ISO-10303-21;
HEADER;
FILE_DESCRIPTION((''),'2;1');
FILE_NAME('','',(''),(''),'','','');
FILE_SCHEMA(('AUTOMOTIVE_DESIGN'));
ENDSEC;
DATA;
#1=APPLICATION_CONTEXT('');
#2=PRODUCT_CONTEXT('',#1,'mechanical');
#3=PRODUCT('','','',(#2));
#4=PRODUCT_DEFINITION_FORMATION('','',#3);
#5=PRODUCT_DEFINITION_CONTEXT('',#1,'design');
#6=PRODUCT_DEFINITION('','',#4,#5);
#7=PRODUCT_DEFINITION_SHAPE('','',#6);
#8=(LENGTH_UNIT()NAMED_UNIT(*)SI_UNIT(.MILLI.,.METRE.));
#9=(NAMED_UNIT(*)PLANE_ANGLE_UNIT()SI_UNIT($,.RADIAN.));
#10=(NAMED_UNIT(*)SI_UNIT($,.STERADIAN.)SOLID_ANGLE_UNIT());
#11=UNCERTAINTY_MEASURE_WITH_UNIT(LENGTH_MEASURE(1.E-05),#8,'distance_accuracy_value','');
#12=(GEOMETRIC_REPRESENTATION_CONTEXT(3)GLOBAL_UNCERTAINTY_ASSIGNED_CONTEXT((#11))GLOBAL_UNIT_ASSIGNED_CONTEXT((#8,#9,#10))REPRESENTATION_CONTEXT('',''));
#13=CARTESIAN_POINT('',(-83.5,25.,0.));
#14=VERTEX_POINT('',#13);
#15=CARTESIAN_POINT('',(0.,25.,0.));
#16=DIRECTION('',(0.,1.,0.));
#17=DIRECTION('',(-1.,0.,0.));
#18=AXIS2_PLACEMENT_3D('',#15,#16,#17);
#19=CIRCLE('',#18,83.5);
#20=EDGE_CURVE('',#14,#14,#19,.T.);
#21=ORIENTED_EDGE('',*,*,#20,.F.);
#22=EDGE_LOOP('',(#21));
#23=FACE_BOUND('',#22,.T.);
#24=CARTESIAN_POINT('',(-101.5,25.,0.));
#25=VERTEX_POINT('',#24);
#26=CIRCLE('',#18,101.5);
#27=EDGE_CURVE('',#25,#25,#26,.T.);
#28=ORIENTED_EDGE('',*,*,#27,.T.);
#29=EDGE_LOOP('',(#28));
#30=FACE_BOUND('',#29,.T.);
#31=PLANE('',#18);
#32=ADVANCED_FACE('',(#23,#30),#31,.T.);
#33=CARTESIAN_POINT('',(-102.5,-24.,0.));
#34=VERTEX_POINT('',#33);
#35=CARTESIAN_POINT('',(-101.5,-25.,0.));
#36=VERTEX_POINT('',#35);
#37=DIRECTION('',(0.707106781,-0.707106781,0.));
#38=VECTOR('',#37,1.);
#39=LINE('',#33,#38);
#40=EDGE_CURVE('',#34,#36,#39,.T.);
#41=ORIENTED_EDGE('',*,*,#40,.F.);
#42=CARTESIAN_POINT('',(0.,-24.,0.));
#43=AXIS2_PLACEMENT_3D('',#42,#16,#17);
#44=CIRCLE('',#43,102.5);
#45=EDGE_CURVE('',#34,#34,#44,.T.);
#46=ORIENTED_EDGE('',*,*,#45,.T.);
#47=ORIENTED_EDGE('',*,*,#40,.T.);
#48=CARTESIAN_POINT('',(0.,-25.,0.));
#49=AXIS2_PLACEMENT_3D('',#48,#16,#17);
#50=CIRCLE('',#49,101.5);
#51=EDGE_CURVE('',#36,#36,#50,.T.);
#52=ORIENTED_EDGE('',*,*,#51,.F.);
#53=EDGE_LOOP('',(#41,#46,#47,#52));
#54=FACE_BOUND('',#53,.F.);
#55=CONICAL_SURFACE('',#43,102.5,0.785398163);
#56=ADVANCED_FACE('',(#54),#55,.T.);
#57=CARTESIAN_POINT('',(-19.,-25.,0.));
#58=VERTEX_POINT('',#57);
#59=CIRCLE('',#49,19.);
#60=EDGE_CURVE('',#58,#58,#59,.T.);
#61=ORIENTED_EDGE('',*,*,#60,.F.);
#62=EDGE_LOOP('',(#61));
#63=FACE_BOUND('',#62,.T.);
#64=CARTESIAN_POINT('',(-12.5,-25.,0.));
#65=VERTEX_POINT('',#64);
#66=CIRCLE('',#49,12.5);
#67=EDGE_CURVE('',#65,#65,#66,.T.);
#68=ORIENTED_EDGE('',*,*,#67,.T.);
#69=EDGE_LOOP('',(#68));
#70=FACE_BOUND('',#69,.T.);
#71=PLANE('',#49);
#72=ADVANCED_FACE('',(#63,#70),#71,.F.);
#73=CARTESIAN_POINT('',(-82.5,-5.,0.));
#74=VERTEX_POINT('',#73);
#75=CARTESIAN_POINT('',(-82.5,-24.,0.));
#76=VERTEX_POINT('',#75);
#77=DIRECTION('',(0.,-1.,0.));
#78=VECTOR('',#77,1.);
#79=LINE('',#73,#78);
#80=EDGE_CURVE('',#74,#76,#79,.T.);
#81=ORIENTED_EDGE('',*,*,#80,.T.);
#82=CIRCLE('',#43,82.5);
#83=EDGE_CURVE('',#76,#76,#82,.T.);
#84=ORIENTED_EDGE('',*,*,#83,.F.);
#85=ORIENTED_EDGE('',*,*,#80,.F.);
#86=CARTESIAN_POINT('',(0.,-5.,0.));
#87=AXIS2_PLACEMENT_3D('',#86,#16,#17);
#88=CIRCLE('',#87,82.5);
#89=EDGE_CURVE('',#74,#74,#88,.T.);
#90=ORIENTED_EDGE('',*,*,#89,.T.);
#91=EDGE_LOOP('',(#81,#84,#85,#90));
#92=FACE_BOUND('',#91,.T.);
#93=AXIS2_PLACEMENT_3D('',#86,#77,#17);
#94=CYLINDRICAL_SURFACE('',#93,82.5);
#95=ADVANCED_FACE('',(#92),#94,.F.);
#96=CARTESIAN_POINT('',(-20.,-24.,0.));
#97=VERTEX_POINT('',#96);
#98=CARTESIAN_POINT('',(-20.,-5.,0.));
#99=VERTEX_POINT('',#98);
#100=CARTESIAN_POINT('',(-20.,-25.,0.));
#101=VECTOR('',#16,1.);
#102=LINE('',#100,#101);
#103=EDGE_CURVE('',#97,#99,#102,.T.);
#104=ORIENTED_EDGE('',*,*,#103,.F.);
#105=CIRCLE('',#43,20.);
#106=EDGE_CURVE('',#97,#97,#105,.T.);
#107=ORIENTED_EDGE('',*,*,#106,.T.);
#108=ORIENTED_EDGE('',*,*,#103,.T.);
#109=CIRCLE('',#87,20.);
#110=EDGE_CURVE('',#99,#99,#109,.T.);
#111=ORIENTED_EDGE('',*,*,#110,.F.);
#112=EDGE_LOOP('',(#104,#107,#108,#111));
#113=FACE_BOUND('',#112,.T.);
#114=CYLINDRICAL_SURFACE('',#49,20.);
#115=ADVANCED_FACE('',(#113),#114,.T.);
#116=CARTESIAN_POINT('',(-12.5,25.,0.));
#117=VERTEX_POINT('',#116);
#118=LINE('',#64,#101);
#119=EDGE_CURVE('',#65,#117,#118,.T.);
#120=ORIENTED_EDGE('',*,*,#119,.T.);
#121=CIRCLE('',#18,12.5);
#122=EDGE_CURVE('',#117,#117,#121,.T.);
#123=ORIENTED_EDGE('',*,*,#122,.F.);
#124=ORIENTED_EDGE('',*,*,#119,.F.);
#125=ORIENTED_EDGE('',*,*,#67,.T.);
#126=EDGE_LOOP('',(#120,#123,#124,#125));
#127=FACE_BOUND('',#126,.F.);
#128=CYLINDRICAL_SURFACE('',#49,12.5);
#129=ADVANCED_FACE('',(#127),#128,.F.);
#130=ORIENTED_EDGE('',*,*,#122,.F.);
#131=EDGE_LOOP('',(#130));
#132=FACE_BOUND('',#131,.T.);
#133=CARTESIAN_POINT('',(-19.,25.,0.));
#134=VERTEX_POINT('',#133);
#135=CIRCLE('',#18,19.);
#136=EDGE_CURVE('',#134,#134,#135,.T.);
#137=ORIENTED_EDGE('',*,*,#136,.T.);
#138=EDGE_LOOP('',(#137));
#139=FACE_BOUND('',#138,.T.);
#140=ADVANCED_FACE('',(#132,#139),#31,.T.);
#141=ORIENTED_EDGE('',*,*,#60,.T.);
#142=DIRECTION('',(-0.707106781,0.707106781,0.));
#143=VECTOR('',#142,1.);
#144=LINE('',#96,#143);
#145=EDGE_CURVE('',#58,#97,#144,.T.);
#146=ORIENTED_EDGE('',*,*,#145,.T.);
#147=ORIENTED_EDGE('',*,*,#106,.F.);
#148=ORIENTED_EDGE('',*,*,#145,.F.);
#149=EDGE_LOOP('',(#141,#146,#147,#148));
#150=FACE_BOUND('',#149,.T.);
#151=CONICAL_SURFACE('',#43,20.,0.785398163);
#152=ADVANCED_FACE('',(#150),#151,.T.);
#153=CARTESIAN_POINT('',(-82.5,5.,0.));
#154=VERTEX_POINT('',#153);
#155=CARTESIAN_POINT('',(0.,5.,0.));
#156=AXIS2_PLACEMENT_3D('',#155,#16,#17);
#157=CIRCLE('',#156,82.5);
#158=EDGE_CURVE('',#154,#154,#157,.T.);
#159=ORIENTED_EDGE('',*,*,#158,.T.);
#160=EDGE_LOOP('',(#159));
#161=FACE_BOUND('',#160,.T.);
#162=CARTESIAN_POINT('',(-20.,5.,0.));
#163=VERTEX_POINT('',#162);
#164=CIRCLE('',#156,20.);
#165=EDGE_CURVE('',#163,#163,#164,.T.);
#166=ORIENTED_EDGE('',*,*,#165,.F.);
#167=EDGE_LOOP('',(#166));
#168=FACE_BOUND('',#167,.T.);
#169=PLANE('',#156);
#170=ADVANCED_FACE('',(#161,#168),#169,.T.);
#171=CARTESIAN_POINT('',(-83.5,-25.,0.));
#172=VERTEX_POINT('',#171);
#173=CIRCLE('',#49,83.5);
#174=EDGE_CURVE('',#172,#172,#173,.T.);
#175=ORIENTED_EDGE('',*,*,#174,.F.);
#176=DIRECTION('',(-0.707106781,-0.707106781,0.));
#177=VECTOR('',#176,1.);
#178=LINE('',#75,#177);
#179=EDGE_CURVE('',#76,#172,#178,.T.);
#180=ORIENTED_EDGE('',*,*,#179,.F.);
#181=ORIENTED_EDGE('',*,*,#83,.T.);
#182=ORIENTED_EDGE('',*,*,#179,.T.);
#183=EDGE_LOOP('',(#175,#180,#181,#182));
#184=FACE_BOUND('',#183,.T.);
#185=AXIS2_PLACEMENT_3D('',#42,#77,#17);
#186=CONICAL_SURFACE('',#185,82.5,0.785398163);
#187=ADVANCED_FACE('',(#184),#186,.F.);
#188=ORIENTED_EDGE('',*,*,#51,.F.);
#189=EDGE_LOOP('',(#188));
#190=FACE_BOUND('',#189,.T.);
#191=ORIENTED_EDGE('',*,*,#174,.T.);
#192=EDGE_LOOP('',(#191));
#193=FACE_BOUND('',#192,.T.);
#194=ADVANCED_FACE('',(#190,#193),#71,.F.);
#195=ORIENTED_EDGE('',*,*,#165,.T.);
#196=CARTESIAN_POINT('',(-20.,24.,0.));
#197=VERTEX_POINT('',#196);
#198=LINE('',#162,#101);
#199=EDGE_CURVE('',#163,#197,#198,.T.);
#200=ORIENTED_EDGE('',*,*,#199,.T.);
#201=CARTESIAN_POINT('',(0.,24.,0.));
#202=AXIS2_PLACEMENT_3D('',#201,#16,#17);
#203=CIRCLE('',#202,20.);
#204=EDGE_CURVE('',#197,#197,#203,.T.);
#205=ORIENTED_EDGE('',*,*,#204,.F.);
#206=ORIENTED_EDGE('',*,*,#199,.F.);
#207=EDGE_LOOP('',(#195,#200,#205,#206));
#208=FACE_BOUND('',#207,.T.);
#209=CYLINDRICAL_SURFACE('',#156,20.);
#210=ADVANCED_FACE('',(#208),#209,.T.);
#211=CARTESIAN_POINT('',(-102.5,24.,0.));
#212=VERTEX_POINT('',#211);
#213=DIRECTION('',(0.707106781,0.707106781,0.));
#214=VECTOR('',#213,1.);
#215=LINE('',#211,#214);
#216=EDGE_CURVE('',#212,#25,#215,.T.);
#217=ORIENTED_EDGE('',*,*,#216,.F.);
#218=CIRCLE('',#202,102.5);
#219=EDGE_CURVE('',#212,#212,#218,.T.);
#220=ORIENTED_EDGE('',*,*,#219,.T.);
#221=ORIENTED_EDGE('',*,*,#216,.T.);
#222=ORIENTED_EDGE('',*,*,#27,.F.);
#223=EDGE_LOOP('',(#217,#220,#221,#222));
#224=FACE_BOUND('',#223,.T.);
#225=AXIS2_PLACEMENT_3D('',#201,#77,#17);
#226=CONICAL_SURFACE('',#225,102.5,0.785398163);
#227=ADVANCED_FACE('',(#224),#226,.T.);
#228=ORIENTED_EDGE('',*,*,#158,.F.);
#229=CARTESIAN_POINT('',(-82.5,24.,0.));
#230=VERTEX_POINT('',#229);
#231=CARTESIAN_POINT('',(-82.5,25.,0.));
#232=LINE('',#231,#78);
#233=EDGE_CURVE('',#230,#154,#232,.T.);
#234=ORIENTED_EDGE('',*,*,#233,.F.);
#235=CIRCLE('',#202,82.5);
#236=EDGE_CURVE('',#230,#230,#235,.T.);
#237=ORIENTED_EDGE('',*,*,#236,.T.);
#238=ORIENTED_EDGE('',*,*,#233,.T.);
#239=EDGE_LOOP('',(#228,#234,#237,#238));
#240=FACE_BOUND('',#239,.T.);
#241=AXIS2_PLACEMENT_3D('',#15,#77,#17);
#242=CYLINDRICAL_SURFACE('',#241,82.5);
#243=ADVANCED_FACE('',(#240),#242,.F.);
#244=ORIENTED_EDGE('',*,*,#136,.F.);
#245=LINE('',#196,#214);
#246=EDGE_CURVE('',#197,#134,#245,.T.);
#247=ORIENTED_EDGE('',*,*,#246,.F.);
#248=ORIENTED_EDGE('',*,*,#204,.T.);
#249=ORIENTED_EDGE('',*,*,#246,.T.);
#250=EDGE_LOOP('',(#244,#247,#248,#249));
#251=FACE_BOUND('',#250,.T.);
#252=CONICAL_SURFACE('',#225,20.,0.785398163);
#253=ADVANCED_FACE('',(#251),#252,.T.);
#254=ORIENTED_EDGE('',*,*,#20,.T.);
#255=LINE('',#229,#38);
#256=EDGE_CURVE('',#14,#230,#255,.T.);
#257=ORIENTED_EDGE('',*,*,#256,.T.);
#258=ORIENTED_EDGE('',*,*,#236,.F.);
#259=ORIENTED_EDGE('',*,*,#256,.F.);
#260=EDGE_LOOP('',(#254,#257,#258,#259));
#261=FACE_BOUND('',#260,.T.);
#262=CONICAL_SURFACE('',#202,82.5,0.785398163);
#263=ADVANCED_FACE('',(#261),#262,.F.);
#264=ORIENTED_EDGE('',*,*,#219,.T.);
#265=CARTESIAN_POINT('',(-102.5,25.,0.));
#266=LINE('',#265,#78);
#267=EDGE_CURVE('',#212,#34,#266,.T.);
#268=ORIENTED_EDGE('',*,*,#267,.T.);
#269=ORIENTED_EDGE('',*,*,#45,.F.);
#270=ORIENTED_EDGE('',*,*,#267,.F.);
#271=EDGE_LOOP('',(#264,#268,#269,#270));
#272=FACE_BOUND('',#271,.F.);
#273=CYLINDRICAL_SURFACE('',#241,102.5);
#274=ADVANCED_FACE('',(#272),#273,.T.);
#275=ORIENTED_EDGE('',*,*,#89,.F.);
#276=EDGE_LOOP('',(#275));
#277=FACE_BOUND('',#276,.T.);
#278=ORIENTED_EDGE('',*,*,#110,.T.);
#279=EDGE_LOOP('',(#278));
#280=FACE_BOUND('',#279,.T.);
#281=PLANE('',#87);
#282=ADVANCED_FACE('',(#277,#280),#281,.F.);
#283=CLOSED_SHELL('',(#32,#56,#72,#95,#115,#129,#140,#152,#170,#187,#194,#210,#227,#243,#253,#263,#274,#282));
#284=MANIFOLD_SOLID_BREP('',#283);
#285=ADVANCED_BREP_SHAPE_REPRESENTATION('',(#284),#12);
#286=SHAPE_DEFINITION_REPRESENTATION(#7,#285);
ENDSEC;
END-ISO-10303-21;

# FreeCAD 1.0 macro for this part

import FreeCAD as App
import Part
import Sketcher
from FreeCAD import Vector
Q = App.Units.Quantity


def edges_at(feature, points):
    """Names of the edges that pass closest to the given points."""
    edges = feature.Shape.Edges
    near = lambda p: min(range(len(edges)), key=lambda i: edges[i].distToShape(Part.Vertex(*p))[0])
    return sorted({f"Edge{near(p) + 1}" for p in points})


def add_polygon(sketch, points):
    """Adds a closed chain of lines whose ends are joined by coincident constraints."""
    first, n = sketch.GeometryCount, len(points)
    for a, b in zip(points, points[1:] + points[:1]):
        sketch.addGeometry(Part.LineSegment(App.Vector(*a, 0), App.Vector(*b, 0)), False)
    for i in range(n):
        sketch.addConstraint(Sketcher.Constraint("Coincident", first + i, 2, first + (i + 1) % n, 1))

doc = App.newDocument("Part")
body = doc.addObject("PartDesign::Body", "Body")

# Sketch on XY plane
sketch1 = body.newObject("Sketcher::SketchObject", "Sketch")
sketch1.AttachmentSupport = (doc.getObject("XY_Plane"), [""])
sketch1.MapMode = "FlatFace"
add_polygon(sketch1, [(-102, 25), (-102, -25), (-82, -25), (-82, -5), (-20, -5), (-20, -25), (-12, -25), (-12, 25), (-20, 25), (-20, 5), (-82, 5), (-82, 25)])  # lines 0-11
sketch1.addConstraint(Sketcher.Constraint("Vertical", 0))
sketch1.addConstraint(Sketcher.Constraint("Horizontal", 1))
sketch1.addConstraint(Sketcher.Constraint("Vertical", 2))
sketch1.addConstraint(Sketcher.Constraint("Horizontal", 3))
sketch1.addConstraint(Sketcher.Constraint("Vertical", 4))
sketch1.addConstraint(Sketcher.Constraint("Horizontal", 5))
sketch1.addConstraint(Sketcher.Constraint("Vertical", 6))
sketch1.addConstraint(Sketcher.Constraint("Horizontal", 7))
sketch1.addConstraint(Sketcher.Constraint("Vertical", 8))
sketch1.addConstraint(Sketcher.Constraint("Horizontal", 9))
sketch1.addConstraint(Sketcher.Constraint("Vertical", 10))
sketch1.addConstraint(Sketcher.Constraint("Horizontal", 11))
sketch1.addConstraint(Sketcher.Constraint("Symmetric", 4, 2, 7, 2, -1))
sketch1.addConstraint(Sketcher.Constraint("Symmetric", 2, 2, 9, 2, -1))
sketch1.addConstraint(Sketcher.Constraint("Horizontal", 1, 2, 4, 2))
sketch1.addConstraint(Sketcher.Constraint("Horizontal", 7, 2, 10, 2))
sketch1.addConstraint(Sketcher.Constraint("Equal", 11, 2))
sketch1.addConstraint(Sketcher.Constraint("DistanceX", 1, 1, 1, 2, Q("20 mm")))
sketch1.addConstraint(Sketcher.Constraint("DistanceY", 0, 2, 0, 1, Q("50 mm")))
sketch1.addConstraint(Sketcher.Constraint("DistanceX", 3, 1, 3, 2, Q("62.5 mm")))
sketch1.addConstraint(Sketcher.Constraint("DistanceX", 5, 1, 5, 2, Q("7.5 mm")))
sketch1.addConstraint(Sketcher.Constraint("DistanceX", 3, 2, -1, 1, Q("20 mm")))
revolution = body.newObject("PartDesign::Revolution", "Revolution")
revolution.Profile = sketch1
revolution.ReferenceAxis = (sketch1, ["V_Axis"])
revolution.Angle = 360
doc.recompute()

chamfer = body.newObject("PartDesign::Chamfer", "Chamfer")
chamfer.Base = (revolution, edges_at(revolution, [
    (82.5, 25, 0),
    (102.5, -25, 0),
    (102.5, 25, 0),
    (20, 25, 0),
    (82.5, -25, 0),
    (20, -25, 0),
]))
chamfer.Size = 1

doc.recompute()
